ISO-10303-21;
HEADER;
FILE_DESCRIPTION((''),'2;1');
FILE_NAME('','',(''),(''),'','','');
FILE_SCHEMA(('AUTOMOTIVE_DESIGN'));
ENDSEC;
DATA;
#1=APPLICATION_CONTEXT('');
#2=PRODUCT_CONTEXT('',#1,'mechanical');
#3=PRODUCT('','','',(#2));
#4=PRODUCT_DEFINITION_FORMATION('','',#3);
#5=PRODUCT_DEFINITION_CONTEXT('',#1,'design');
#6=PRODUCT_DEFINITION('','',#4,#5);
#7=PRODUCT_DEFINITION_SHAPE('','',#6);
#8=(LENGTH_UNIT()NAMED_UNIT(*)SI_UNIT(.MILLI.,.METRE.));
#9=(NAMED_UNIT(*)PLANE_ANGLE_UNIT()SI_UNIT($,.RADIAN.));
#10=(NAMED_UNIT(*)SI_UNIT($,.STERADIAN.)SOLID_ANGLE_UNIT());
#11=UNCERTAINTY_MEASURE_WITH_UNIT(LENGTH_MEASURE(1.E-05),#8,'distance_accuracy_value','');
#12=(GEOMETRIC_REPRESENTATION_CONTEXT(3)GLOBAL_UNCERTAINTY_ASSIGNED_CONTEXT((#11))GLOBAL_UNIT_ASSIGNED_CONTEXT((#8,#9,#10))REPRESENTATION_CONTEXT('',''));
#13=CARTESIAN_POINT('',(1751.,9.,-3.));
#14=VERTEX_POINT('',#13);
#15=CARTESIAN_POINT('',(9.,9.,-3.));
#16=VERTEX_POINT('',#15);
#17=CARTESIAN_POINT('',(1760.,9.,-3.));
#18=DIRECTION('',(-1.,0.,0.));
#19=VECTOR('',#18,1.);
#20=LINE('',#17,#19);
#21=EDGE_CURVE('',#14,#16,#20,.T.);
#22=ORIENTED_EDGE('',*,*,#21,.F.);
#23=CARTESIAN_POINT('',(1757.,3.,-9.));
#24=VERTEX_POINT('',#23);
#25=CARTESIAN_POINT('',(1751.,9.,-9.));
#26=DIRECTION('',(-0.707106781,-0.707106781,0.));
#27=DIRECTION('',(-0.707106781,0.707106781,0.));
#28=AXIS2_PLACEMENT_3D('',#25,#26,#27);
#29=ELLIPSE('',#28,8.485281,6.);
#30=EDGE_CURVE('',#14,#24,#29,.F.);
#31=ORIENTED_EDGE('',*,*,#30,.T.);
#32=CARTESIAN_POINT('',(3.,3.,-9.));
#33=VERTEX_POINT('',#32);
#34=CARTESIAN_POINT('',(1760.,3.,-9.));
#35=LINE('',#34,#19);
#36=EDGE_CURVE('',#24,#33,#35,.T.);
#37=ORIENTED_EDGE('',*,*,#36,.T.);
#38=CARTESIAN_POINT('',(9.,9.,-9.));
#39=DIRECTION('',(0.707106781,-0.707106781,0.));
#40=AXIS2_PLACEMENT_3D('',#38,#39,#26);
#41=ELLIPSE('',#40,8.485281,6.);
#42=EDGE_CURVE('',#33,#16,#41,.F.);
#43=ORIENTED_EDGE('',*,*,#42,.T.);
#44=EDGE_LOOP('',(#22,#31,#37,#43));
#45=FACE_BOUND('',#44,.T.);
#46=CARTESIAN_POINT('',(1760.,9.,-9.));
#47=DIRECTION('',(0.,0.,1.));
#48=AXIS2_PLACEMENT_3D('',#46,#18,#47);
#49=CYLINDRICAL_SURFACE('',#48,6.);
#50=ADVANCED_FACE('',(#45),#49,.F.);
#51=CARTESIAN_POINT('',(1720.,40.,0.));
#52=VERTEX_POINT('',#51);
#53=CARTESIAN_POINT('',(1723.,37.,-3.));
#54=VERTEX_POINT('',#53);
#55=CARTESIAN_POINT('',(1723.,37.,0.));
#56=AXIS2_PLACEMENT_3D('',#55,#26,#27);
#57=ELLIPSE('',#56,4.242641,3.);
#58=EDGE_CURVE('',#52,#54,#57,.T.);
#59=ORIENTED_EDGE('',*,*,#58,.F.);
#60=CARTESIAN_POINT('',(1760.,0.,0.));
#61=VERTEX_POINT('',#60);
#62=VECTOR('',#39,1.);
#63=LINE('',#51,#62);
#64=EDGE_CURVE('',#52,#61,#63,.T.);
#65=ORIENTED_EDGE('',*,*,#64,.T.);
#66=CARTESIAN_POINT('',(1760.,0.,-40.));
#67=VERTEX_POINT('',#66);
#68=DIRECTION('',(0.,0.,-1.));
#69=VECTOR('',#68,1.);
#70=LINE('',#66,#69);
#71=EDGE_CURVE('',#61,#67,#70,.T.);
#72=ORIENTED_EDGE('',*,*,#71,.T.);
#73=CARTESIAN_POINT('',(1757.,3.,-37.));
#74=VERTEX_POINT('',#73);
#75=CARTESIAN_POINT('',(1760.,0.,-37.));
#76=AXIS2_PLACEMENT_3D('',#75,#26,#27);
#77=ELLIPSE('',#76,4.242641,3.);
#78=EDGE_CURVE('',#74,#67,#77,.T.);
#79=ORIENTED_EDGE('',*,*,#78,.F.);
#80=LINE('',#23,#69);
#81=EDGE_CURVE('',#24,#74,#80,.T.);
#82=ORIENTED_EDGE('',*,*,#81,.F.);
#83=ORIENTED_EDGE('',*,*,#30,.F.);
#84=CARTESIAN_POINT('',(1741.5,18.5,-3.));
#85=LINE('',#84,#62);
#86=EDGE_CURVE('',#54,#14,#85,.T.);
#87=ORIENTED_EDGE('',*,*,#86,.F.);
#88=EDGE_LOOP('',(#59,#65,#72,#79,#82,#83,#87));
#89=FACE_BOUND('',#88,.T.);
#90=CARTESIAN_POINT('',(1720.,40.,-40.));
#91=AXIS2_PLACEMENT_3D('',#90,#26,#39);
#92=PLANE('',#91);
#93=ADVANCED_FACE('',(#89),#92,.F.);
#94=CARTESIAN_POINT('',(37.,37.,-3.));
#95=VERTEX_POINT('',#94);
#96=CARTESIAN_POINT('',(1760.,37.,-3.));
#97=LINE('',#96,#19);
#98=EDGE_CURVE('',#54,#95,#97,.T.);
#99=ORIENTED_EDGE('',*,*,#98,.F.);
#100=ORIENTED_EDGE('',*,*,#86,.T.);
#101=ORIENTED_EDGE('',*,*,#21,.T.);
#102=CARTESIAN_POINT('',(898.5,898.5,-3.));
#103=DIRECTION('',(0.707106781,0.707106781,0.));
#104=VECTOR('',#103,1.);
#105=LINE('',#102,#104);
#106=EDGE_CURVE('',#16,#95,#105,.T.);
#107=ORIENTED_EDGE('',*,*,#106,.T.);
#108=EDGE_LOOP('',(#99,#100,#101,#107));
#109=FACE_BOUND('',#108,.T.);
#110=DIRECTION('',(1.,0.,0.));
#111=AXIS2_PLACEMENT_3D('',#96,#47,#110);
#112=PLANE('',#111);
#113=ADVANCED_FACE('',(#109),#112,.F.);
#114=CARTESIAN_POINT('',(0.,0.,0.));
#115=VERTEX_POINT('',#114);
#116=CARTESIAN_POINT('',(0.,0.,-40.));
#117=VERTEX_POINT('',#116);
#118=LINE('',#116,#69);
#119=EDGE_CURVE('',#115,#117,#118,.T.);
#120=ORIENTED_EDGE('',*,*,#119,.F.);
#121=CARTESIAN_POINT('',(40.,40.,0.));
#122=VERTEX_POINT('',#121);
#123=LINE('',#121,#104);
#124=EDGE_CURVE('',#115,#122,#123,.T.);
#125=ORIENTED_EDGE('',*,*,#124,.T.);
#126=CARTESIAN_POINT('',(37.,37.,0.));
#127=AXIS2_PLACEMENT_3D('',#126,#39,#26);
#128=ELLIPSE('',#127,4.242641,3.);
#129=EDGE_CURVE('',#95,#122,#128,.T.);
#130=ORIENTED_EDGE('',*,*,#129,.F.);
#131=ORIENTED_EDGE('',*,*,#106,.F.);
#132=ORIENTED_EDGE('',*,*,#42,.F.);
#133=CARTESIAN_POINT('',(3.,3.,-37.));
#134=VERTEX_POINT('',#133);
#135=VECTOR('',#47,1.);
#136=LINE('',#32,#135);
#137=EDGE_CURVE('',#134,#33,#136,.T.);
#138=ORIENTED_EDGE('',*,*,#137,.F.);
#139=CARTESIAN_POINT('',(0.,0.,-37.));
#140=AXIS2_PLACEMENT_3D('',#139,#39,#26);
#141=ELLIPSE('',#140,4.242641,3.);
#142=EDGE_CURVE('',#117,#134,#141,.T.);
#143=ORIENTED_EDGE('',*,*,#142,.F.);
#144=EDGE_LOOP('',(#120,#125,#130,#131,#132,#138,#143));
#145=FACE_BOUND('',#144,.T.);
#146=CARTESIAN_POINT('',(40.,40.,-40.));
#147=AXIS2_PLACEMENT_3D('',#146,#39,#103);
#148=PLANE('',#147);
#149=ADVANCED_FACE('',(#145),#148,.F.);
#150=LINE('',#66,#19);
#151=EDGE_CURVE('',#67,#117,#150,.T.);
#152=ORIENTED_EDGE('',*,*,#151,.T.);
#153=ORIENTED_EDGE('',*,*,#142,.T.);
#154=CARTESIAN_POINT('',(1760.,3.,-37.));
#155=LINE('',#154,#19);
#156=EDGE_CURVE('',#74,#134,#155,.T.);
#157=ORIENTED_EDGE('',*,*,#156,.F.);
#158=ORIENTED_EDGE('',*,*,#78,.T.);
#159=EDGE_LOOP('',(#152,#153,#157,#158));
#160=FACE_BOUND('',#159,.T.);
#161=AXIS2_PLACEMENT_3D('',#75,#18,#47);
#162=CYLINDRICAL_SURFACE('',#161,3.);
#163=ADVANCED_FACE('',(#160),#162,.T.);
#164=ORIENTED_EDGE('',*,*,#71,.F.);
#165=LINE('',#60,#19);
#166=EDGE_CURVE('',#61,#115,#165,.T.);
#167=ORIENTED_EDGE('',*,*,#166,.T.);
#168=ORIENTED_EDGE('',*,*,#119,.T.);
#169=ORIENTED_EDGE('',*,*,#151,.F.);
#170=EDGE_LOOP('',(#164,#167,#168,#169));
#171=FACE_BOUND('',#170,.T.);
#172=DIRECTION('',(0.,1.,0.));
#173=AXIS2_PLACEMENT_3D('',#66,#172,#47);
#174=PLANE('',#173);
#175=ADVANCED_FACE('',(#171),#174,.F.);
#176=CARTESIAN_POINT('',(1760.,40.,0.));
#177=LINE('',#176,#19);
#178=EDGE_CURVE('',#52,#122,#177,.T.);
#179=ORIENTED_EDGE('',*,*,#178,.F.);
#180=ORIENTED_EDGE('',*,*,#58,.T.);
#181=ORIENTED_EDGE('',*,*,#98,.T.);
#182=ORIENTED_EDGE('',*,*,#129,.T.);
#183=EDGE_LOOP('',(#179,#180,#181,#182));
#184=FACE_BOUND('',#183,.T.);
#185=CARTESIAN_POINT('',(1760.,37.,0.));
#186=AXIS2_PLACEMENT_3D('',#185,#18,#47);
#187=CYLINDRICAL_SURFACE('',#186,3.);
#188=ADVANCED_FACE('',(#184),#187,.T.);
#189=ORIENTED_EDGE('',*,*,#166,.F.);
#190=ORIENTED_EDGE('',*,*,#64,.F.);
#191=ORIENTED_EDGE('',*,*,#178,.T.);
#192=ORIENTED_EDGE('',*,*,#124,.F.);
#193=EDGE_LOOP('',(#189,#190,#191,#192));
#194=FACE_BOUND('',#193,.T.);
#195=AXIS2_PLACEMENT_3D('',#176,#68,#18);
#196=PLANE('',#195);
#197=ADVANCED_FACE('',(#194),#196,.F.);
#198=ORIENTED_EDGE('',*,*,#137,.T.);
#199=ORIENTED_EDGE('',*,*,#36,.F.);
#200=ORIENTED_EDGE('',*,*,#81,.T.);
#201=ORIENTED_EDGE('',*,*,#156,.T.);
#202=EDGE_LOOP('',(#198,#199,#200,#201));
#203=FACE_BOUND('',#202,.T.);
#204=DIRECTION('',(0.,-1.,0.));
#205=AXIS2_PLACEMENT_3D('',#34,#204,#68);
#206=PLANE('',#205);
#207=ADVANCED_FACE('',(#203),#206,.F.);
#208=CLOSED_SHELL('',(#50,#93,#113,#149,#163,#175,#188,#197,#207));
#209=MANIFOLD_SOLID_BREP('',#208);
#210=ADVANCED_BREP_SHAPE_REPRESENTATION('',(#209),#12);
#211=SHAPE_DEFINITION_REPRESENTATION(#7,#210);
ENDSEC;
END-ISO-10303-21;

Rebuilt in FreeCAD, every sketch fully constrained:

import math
import FreeCAD as App
import Part
import Sketcher

V = App.Vector

doc = App.newDocument("Part")
body = doc.addObject("PartDesign::Body", "Body")

# Sketch on YZ plane
sketch1 = doc.addObject("Sketcher::SketchObject", "Sketch")
body.addObject(sketch1)
sketch1.AttachmentSupport = (doc.YZ_Plane, [""])
sketch1.MapMode = "FlatFace"
sketch1.addGeometry(Part.LineSegment(V(40, 0, 0), V(0, 0, 0)), False)
sketch1.addGeometry(Part.LineSegment(V(0, 0, 0), V(0, -40, 0)), False)
sketch1.addGeometry(Part.ArcOfCircle(Part.Circle(V(0, -37, 0), V(0, 0, 1), 3), math.radians(-90), math.radians(0)), False)
sketch1.addGeometry(Part.LineSegment(V(3, -37, 0), V(3, -9, 0)), False)
sketch1.addGeometry(Part.ArcOfCircle(Part.Circle(V(9, -9, 0), V(0, 0, 1), 6), math.radians(90), math.radians(180)), False)
sketch1.addGeometry(Part.LineSegment(V(9, -3, 0), V(37, -3, 0)), False)
sketch1.addGeometry(Part.ArcOfCircle(Part.Circle(V(37, 0, 0), V(0, 0, 1), 3), math.radians(-90), math.radians(0)), False)
sketch1.addConstraint(Sketcher.Constraint("Coincident", 0, 2, 1, 1))
sketch1.addConstraint(Sketcher.Constraint("Coincident", 1, 2, 2, 1))
sketch1.addConstraint(Sketcher.Constraint("Tangent", 2, 2, 3, 1))
sketch1.addConstraint(Sketcher.Constraint("Tangent", 3, 2, 4, 2))
sketch1.addConstraint(Sketcher.Constraint("Tangent", 4, 1, 5, 1))
sketch1.addConstraint(Sketcher.Constraint("Tangent", 5, 2, 6, 1))
sketch1.addConstraint(Sketcher.Constraint("Coincident", 6, 2, 0, 1))
sketch1.addConstraint(Sketcher.Constraint("Horizontal", 0))
sketch1.addConstraint(Sketcher.Constraint("Vertical", 1))
sketch1.addConstraint(Sketcher.Constraint("Vertical", 3))
sketch1.addConstraint(Sketcher.Constraint("Horizontal", 5))
sketch1.addConstraint(Sketcher.Constraint("Coincident", 0, 2, -1, 1))
sketch1.addConstraint(Sketcher.Constraint("Equal", 2, 6))
sketch1.addConstraint(Sketcher.Constraint("PointOnObject", 2, 3, -2))
sketch1.addConstraint(Sketcher.Constraint("PointOnObject", 6, 3, -1))
sketch1.addConstraint(Sketcher.Constraint("Equal", 0, 1))
sketch1.addConstraint(Sketcher.Constraint("Radius", 2, 3.0))
sketch1.addConstraint(Sketcher.Constraint("Radius", 4, 6.0))
sketch1.addConstraint(Sketcher.Constraint("DistanceX", 0, 2, 0, 1, 40.0))
pad1 = doc.addObject("PartDesign::Pad", "Pad")
body.addObject(pad1)
pad1.Profile = sketch1
pad1.Length = 1760

# Sketch on XY plane
sketch2 = doc.addObject("Sketcher::SketchObject", "Sketch001")
body.addObject(sketch2)
sketch2.AttachmentSupport = (doc.XY_Plane, [""])
sketch2.MapMode = "FlatFace"
sketch2.addGeometry(Part.LineSegment(V(1760, 0, 0), V(1760, 40, 0)), False)
sketch2.addGeometry(Part.LineSegment(V(1760, 40, 0), V(1720, 40, 0)), False)
sketch2.addGeometry(Part.LineSegment(V(1720, 40, 0), V(1760, 0, 0)), False)
sketch2.addGeometry(Part.LineSegment(V(0, 40, 0), V(0, 0, 0)), False)
sketch2.addGeometry(Part.LineSegment(V(0, 0, 0), V(40, 40, 0)), False)
sketch2.addGeometry(Part.LineSegment(V(40, 40, 0), V(0, 40, 0)), False)
sketch2.addConstraint(Sketcher.Constraint("Coincident", 0, 2, 1, 1))
sketch2.addConstraint(Sketcher.Constraint("Coincident", 1, 2, 2, 1))
sketch2.addConstraint(Sketcher.Constraint("Coincident", 2, 2, 0, 1))
sketch2.addConstraint(Sketcher.Constraint("Coincident", 3, 2, 4, 1))
sketch2.addConstraint(Sketcher.Constraint("Coincident", 4, 2, 5, 1))
sketch2.addConstraint(Sketcher.Constraint("Coincident", 5, 2, 3, 1))
sketch2.addConstraint(Sketcher.Constraint("Vertical", 0))
sketch2.addConstraint(Sketcher.Constraint("Horizontal", 1))
sketch2.addConstraint(Sketcher.Constraint("Vertical", 3))
sketch2.addConstraint(Sketcher.Constraint("Horizontal", 5))
sketch2.addConstraint(Sketcher.Constraint("Coincident", 3, 2, -1, 1))
sketch2.addConstraint(Sketcher.Constraint("PointOnObject", 2, 2, -1))
sketch2.addConstraint(Sketcher.Constraint("Perpendicular", 2, 4))
sketch2.addConstraint(Sketcher.Constraint("Horizontal", 1, 2, 4, 2))
sketch2.addConstraint(Sketcher.Constraint("Equal", 1, 5))
sketch2.addConstraint(Sketcher.Constraint("DistanceX", 1, 2, 1, 1, 40.0))
sketch2.addConstraint(Sketcher.Constraint("DistanceX", -1, 1, 0, 2, 1760.0))
pocket1 = doc.addObject("PartDesign::Pocket", "Pocket")
body.addObject(pocket1)
pocket1.Profile = sketch2
pocket1.Type = "ThroughAll"

doc.recompute()
